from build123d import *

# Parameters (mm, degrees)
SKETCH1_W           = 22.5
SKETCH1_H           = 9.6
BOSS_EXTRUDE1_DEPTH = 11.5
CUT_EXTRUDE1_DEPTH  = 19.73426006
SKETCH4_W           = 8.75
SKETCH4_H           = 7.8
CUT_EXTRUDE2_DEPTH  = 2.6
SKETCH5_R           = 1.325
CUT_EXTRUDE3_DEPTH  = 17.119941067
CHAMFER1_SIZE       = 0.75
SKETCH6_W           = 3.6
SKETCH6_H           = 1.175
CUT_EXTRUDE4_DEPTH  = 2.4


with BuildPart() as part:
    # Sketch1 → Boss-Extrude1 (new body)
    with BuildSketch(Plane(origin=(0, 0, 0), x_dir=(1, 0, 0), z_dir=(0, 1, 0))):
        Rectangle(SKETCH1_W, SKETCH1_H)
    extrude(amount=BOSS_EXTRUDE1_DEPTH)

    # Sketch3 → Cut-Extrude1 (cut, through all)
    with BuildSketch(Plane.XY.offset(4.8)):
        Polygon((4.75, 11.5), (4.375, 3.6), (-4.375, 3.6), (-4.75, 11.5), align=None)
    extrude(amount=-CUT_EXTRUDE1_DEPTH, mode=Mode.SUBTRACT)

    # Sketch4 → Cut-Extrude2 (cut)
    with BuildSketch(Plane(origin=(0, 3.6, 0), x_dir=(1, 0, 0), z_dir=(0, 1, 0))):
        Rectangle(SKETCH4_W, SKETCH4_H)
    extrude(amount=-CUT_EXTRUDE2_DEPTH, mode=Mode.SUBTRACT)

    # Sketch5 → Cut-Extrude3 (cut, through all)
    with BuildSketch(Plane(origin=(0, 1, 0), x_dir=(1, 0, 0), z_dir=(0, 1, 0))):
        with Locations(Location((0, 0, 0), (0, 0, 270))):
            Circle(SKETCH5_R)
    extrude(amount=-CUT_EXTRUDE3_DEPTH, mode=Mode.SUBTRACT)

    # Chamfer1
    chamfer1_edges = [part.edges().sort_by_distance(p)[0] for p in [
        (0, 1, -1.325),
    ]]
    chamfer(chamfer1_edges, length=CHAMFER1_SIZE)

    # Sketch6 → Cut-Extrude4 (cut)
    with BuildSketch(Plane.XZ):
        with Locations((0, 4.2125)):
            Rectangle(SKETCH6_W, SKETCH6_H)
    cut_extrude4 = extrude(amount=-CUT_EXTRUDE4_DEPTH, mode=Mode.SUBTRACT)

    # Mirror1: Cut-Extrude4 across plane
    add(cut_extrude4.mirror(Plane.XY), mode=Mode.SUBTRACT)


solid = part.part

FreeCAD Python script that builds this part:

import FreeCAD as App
import Part
import Sketcher

V = App.Vector


def edges_at(feature, points):
    """Names of the edges that pass closest to the given points."""
    edges = feature.Shape.Edges
    near = lambda p: min(range(len(edges)), key=lambda i: edges[i].distToShape(Part.Vertex(*p))[0])
    return sorted({f"Edge{near(p) + 1}" for p in points})


def add_polygon(sketch, points):
    """Adds a closed chain of lines whose ends are joined by coincident constraints."""
    first, n = sketch.GeometryCount, len(points)
    for a, b in zip(points, points[1:] + points[:1]):
        sketch.addGeometry(Part.LineSegment(App.Vector(*a, 0), App.Vector(*b, 0)), False)
    for i in range(n):
        sketch.addConstraint(Sketcher.Constraint("Coincident", first + i, 2, first + (i + 1) % n, 1))

doc = App.newDocument("Part")
body = doc.addObject("PartDesign::Body", "Body")

sketch1 = body.newObject("Sketcher::SketchObject", "Sketch")
sketch1.AttachmentSupport = (doc.getObject("XZ_Plane"), [""])
sketch1.MapMode = "FlatFace"
add_polygon(sketch1, [(-11, -5), (-11, 5), (11, 5), (11, -5)])
sketch1.addConstraint([
    Sketcher.Constraint("Vertical", 0),
    Sketcher.Constraint("Horizontal", 1),
    Sketcher.Constraint("Vertical", 2),
    Sketcher.Constraint("Horizontal", 3),
    Sketcher.Constraint("Symmetric", 0, 2, 2, 2, -1, 1),
    Sketcher.Constraint("DistanceX", 1, 1, 1, 2, 22.5),
    Sketcher.Constraint("DistanceY", 0, 1, 0, 2, 9.6),
])
pad1 = body.newObject("PartDesign::Pad", "Pad")
pad1.Profile = sketch1
pad1.Length = 11.5
pad1.Reversed = True

sketch2 = body.newObject("Sketcher::SketchObject", "Sketch001")
sketch2.AttachmentSupport = (doc.getObject("XY_Plane"), [""])
sketch2.MapMode = "FlatFace"
sketch2.AttachmentOffset = App.Placement(V(0, 0, 4.8), App.Rotation())
add_polygon(sketch2, [(4, 4), (5, 12), (-5, 12), (-4, 4)])
sketch2.addConstraint([
    Sketcher.Constraint("Horizontal", 1),
    Sketcher.Constraint("Horizontal", 3),
    Sketcher.Constraint("Equal", 0, 2),
    Sketcher.Constraint("DistanceX", 1, 2, 1, 1, 9.5),
    Sketcher.Constraint("DistanceX", 3, 1, 3, 2, 8.75),
    Sketcher.Constraint("DistanceY", -1, 1, 0, 2, 11.5),
    Sketcher.Constraint("DistanceY", -1, 1, 2, 2, 3.6),
    Sketcher.Constraint("DistanceX", -1, 1, 0, 2, 4.75),
])
pocket1 = body.newObject("PartDesign::Pocket", "Pocket")
pocket1.Profile = sketch2
pocket1.Type = "ThroughAll"

sketch3 = body.newObject("Sketcher::SketchObject", "Sketch002")
sketch3.AttachmentSupport = (doc.getObject("XZ_Plane"), [""])
sketch3.MapMode = "FlatFace"
sketch3.AttachmentOffset = App.Placement(V(0, 0, -3.6), App.Rotation())
add_polygon(sketch3, [(-4, -4), (-4, 4), (4, 4), (4, -4)])
sketch3.addConstraint([
    Sketcher.Constraint("Vertical", 0),
    Sketcher.Constraint("Horizontal", 1),
    Sketcher.Constraint("Vertical", 2),
    Sketcher.Constraint("Horizontal", 3),
    Sketcher.Constraint("Symmetric", 0, 2, 2, 2, -1, 1),
    Sketcher.Constraint("DistanceY", 0, 1, 0, 2, 7.8),
    Sketcher.Constraint("DistanceX", 1, 1, 1, 2, 8.75),
])
pocket2 = body.newObject("PartDesign::Pocket", "Pocket001")
pocket2.Profile = sketch3
pocket2.Length = 2.6
pocket2.Reversed = True

sketch4 = body.newObject("Sketcher::SketchObject", "Sketch003")
sketch4.AttachmentSupport = (doc.getObject("XZ_Plane"), [""])
sketch4.MapMode = "FlatFace"
sketch4.AttachmentOffset = App.Placement(V(0, 0, -1), App.Rotation())
sketch4.addGeometry(Part.Circle(V(0, 0, 0), V(0, 0, 1), 1.3), False)
sketch4.addConstraint([
    Sketcher.Constraint("Coincident", 0, 3, -1, 1),
    Sketcher.Constraint("Diameter", 0, 2.65),
])
pocket3 = body.newObject("PartDesign::Pocket", "Pocket002")
pocket3.Profile = sketch4
pocket3.Type = "ThroughAll"
pocket3.Reversed = True
doc.recompute()

chamfer = body.newObject("PartDesign::Chamfer", "Chamfer")
chamfer.Base = (pocket3, edges_at(pocket3, [(0, 1, -1.325)]))
chamfer.Size = 0.75

sketch5 = body.newObject("Sketcher::SketchObject", "Sketch004")
sketch5.AttachmentSupport = (doc.getObject("XZ_Plane"), [""])
sketch5.MapMode = "FlatFace"
add_polygon(sketch5, [(-1.8, 4.8), (-1.8, 3.6), (1.8, 3.6), (1.8, 4.8)])
sketch5.addConstraint([
    Sketcher.Constraint("Vertical", 0),
    Sketcher.Constraint("Horizontal", 1),
    Sketcher.Constraint("Vertical", 2),
    Sketcher.Constraint("Horizontal", 3),
    Sketcher.Constraint("DistanceX", 1, 1, 1, 2, 3.6),
    Sketcher.Constraint("DistanceX", 0, 2, -1, 1, 1.8),
    Sketcher.Constraint("DistanceY", -1, 1, 2, 2, 4.8),
    Sketcher.Constraint("DistanceY", 0, 2, 0, 1, 1.175),
])
pocket4 = body.newObject("PartDesign::Pocket", "Pocket003")
pocket4.Profile = sketch5
pocket4.Length = 2.4
doc.recompute()

mirrored = body.newObject("PartDesign::Mirrored", "Mirrored")
mirrored.Originals = [pocket4]
mirrored.MirrorPlane = (doc.getObject("XY_Plane"), [""])
body.Tip = mirrored

doc.recompute()
